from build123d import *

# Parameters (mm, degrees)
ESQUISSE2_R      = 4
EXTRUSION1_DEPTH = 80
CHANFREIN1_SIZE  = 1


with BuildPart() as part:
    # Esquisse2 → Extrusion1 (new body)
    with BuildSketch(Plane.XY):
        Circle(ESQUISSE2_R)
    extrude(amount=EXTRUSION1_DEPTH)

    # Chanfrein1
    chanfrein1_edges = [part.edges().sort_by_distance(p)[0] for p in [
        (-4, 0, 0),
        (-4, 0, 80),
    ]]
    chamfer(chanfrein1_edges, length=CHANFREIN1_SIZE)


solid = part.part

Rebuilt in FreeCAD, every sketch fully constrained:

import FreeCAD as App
import Part
import Sketcher

V = App.Vector


def edges_at(feature, points):
    """Names of the edges that pass closest to the given points."""
    edges = feature.Shape.Edges
    near = lambda p: min(range(len(edges)), key=lambda i: edges[i].distToShape(Part.Vertex(*p))[0])
    return sorted({f"Edge{near(p) + 1}" for p in points})

doc = App.newDocument("Part")
body = doc.addObject("PartDesign::Body", "Body")

sketch1 = body.newObject("Sketcher::SketchObject", "Sketch")
sketch1.AttachmentSupport = (doc.getObject("XY_Plane"), [""])
sketch1.MapMode = "FlatFace"
sketch1.addGeometry(Part.Circle(V(0, 0, 0), V(0, 0, 1), 4), False)
sketch1.addConstraint([
    Sketcher.Constraint("Coincident", 0, 3, -1, 1),
    Sketcher.Constraint("Diameter", 0, 8.0),
])
pad1 = body.newObject("PartDesign::Pad", "Pad")
pad1.Profile = sketch1
pad1.Length = 80
doc.recompute()

chamfer = body.newObject("PartDesign::Chamfer", "Chamfer")
chamfer.Base = (pad1, edges_at(pad1, [(-4, 0, 0), (-4, 0, 80)]))
chamfer.Size = 1

doc.recompute()
